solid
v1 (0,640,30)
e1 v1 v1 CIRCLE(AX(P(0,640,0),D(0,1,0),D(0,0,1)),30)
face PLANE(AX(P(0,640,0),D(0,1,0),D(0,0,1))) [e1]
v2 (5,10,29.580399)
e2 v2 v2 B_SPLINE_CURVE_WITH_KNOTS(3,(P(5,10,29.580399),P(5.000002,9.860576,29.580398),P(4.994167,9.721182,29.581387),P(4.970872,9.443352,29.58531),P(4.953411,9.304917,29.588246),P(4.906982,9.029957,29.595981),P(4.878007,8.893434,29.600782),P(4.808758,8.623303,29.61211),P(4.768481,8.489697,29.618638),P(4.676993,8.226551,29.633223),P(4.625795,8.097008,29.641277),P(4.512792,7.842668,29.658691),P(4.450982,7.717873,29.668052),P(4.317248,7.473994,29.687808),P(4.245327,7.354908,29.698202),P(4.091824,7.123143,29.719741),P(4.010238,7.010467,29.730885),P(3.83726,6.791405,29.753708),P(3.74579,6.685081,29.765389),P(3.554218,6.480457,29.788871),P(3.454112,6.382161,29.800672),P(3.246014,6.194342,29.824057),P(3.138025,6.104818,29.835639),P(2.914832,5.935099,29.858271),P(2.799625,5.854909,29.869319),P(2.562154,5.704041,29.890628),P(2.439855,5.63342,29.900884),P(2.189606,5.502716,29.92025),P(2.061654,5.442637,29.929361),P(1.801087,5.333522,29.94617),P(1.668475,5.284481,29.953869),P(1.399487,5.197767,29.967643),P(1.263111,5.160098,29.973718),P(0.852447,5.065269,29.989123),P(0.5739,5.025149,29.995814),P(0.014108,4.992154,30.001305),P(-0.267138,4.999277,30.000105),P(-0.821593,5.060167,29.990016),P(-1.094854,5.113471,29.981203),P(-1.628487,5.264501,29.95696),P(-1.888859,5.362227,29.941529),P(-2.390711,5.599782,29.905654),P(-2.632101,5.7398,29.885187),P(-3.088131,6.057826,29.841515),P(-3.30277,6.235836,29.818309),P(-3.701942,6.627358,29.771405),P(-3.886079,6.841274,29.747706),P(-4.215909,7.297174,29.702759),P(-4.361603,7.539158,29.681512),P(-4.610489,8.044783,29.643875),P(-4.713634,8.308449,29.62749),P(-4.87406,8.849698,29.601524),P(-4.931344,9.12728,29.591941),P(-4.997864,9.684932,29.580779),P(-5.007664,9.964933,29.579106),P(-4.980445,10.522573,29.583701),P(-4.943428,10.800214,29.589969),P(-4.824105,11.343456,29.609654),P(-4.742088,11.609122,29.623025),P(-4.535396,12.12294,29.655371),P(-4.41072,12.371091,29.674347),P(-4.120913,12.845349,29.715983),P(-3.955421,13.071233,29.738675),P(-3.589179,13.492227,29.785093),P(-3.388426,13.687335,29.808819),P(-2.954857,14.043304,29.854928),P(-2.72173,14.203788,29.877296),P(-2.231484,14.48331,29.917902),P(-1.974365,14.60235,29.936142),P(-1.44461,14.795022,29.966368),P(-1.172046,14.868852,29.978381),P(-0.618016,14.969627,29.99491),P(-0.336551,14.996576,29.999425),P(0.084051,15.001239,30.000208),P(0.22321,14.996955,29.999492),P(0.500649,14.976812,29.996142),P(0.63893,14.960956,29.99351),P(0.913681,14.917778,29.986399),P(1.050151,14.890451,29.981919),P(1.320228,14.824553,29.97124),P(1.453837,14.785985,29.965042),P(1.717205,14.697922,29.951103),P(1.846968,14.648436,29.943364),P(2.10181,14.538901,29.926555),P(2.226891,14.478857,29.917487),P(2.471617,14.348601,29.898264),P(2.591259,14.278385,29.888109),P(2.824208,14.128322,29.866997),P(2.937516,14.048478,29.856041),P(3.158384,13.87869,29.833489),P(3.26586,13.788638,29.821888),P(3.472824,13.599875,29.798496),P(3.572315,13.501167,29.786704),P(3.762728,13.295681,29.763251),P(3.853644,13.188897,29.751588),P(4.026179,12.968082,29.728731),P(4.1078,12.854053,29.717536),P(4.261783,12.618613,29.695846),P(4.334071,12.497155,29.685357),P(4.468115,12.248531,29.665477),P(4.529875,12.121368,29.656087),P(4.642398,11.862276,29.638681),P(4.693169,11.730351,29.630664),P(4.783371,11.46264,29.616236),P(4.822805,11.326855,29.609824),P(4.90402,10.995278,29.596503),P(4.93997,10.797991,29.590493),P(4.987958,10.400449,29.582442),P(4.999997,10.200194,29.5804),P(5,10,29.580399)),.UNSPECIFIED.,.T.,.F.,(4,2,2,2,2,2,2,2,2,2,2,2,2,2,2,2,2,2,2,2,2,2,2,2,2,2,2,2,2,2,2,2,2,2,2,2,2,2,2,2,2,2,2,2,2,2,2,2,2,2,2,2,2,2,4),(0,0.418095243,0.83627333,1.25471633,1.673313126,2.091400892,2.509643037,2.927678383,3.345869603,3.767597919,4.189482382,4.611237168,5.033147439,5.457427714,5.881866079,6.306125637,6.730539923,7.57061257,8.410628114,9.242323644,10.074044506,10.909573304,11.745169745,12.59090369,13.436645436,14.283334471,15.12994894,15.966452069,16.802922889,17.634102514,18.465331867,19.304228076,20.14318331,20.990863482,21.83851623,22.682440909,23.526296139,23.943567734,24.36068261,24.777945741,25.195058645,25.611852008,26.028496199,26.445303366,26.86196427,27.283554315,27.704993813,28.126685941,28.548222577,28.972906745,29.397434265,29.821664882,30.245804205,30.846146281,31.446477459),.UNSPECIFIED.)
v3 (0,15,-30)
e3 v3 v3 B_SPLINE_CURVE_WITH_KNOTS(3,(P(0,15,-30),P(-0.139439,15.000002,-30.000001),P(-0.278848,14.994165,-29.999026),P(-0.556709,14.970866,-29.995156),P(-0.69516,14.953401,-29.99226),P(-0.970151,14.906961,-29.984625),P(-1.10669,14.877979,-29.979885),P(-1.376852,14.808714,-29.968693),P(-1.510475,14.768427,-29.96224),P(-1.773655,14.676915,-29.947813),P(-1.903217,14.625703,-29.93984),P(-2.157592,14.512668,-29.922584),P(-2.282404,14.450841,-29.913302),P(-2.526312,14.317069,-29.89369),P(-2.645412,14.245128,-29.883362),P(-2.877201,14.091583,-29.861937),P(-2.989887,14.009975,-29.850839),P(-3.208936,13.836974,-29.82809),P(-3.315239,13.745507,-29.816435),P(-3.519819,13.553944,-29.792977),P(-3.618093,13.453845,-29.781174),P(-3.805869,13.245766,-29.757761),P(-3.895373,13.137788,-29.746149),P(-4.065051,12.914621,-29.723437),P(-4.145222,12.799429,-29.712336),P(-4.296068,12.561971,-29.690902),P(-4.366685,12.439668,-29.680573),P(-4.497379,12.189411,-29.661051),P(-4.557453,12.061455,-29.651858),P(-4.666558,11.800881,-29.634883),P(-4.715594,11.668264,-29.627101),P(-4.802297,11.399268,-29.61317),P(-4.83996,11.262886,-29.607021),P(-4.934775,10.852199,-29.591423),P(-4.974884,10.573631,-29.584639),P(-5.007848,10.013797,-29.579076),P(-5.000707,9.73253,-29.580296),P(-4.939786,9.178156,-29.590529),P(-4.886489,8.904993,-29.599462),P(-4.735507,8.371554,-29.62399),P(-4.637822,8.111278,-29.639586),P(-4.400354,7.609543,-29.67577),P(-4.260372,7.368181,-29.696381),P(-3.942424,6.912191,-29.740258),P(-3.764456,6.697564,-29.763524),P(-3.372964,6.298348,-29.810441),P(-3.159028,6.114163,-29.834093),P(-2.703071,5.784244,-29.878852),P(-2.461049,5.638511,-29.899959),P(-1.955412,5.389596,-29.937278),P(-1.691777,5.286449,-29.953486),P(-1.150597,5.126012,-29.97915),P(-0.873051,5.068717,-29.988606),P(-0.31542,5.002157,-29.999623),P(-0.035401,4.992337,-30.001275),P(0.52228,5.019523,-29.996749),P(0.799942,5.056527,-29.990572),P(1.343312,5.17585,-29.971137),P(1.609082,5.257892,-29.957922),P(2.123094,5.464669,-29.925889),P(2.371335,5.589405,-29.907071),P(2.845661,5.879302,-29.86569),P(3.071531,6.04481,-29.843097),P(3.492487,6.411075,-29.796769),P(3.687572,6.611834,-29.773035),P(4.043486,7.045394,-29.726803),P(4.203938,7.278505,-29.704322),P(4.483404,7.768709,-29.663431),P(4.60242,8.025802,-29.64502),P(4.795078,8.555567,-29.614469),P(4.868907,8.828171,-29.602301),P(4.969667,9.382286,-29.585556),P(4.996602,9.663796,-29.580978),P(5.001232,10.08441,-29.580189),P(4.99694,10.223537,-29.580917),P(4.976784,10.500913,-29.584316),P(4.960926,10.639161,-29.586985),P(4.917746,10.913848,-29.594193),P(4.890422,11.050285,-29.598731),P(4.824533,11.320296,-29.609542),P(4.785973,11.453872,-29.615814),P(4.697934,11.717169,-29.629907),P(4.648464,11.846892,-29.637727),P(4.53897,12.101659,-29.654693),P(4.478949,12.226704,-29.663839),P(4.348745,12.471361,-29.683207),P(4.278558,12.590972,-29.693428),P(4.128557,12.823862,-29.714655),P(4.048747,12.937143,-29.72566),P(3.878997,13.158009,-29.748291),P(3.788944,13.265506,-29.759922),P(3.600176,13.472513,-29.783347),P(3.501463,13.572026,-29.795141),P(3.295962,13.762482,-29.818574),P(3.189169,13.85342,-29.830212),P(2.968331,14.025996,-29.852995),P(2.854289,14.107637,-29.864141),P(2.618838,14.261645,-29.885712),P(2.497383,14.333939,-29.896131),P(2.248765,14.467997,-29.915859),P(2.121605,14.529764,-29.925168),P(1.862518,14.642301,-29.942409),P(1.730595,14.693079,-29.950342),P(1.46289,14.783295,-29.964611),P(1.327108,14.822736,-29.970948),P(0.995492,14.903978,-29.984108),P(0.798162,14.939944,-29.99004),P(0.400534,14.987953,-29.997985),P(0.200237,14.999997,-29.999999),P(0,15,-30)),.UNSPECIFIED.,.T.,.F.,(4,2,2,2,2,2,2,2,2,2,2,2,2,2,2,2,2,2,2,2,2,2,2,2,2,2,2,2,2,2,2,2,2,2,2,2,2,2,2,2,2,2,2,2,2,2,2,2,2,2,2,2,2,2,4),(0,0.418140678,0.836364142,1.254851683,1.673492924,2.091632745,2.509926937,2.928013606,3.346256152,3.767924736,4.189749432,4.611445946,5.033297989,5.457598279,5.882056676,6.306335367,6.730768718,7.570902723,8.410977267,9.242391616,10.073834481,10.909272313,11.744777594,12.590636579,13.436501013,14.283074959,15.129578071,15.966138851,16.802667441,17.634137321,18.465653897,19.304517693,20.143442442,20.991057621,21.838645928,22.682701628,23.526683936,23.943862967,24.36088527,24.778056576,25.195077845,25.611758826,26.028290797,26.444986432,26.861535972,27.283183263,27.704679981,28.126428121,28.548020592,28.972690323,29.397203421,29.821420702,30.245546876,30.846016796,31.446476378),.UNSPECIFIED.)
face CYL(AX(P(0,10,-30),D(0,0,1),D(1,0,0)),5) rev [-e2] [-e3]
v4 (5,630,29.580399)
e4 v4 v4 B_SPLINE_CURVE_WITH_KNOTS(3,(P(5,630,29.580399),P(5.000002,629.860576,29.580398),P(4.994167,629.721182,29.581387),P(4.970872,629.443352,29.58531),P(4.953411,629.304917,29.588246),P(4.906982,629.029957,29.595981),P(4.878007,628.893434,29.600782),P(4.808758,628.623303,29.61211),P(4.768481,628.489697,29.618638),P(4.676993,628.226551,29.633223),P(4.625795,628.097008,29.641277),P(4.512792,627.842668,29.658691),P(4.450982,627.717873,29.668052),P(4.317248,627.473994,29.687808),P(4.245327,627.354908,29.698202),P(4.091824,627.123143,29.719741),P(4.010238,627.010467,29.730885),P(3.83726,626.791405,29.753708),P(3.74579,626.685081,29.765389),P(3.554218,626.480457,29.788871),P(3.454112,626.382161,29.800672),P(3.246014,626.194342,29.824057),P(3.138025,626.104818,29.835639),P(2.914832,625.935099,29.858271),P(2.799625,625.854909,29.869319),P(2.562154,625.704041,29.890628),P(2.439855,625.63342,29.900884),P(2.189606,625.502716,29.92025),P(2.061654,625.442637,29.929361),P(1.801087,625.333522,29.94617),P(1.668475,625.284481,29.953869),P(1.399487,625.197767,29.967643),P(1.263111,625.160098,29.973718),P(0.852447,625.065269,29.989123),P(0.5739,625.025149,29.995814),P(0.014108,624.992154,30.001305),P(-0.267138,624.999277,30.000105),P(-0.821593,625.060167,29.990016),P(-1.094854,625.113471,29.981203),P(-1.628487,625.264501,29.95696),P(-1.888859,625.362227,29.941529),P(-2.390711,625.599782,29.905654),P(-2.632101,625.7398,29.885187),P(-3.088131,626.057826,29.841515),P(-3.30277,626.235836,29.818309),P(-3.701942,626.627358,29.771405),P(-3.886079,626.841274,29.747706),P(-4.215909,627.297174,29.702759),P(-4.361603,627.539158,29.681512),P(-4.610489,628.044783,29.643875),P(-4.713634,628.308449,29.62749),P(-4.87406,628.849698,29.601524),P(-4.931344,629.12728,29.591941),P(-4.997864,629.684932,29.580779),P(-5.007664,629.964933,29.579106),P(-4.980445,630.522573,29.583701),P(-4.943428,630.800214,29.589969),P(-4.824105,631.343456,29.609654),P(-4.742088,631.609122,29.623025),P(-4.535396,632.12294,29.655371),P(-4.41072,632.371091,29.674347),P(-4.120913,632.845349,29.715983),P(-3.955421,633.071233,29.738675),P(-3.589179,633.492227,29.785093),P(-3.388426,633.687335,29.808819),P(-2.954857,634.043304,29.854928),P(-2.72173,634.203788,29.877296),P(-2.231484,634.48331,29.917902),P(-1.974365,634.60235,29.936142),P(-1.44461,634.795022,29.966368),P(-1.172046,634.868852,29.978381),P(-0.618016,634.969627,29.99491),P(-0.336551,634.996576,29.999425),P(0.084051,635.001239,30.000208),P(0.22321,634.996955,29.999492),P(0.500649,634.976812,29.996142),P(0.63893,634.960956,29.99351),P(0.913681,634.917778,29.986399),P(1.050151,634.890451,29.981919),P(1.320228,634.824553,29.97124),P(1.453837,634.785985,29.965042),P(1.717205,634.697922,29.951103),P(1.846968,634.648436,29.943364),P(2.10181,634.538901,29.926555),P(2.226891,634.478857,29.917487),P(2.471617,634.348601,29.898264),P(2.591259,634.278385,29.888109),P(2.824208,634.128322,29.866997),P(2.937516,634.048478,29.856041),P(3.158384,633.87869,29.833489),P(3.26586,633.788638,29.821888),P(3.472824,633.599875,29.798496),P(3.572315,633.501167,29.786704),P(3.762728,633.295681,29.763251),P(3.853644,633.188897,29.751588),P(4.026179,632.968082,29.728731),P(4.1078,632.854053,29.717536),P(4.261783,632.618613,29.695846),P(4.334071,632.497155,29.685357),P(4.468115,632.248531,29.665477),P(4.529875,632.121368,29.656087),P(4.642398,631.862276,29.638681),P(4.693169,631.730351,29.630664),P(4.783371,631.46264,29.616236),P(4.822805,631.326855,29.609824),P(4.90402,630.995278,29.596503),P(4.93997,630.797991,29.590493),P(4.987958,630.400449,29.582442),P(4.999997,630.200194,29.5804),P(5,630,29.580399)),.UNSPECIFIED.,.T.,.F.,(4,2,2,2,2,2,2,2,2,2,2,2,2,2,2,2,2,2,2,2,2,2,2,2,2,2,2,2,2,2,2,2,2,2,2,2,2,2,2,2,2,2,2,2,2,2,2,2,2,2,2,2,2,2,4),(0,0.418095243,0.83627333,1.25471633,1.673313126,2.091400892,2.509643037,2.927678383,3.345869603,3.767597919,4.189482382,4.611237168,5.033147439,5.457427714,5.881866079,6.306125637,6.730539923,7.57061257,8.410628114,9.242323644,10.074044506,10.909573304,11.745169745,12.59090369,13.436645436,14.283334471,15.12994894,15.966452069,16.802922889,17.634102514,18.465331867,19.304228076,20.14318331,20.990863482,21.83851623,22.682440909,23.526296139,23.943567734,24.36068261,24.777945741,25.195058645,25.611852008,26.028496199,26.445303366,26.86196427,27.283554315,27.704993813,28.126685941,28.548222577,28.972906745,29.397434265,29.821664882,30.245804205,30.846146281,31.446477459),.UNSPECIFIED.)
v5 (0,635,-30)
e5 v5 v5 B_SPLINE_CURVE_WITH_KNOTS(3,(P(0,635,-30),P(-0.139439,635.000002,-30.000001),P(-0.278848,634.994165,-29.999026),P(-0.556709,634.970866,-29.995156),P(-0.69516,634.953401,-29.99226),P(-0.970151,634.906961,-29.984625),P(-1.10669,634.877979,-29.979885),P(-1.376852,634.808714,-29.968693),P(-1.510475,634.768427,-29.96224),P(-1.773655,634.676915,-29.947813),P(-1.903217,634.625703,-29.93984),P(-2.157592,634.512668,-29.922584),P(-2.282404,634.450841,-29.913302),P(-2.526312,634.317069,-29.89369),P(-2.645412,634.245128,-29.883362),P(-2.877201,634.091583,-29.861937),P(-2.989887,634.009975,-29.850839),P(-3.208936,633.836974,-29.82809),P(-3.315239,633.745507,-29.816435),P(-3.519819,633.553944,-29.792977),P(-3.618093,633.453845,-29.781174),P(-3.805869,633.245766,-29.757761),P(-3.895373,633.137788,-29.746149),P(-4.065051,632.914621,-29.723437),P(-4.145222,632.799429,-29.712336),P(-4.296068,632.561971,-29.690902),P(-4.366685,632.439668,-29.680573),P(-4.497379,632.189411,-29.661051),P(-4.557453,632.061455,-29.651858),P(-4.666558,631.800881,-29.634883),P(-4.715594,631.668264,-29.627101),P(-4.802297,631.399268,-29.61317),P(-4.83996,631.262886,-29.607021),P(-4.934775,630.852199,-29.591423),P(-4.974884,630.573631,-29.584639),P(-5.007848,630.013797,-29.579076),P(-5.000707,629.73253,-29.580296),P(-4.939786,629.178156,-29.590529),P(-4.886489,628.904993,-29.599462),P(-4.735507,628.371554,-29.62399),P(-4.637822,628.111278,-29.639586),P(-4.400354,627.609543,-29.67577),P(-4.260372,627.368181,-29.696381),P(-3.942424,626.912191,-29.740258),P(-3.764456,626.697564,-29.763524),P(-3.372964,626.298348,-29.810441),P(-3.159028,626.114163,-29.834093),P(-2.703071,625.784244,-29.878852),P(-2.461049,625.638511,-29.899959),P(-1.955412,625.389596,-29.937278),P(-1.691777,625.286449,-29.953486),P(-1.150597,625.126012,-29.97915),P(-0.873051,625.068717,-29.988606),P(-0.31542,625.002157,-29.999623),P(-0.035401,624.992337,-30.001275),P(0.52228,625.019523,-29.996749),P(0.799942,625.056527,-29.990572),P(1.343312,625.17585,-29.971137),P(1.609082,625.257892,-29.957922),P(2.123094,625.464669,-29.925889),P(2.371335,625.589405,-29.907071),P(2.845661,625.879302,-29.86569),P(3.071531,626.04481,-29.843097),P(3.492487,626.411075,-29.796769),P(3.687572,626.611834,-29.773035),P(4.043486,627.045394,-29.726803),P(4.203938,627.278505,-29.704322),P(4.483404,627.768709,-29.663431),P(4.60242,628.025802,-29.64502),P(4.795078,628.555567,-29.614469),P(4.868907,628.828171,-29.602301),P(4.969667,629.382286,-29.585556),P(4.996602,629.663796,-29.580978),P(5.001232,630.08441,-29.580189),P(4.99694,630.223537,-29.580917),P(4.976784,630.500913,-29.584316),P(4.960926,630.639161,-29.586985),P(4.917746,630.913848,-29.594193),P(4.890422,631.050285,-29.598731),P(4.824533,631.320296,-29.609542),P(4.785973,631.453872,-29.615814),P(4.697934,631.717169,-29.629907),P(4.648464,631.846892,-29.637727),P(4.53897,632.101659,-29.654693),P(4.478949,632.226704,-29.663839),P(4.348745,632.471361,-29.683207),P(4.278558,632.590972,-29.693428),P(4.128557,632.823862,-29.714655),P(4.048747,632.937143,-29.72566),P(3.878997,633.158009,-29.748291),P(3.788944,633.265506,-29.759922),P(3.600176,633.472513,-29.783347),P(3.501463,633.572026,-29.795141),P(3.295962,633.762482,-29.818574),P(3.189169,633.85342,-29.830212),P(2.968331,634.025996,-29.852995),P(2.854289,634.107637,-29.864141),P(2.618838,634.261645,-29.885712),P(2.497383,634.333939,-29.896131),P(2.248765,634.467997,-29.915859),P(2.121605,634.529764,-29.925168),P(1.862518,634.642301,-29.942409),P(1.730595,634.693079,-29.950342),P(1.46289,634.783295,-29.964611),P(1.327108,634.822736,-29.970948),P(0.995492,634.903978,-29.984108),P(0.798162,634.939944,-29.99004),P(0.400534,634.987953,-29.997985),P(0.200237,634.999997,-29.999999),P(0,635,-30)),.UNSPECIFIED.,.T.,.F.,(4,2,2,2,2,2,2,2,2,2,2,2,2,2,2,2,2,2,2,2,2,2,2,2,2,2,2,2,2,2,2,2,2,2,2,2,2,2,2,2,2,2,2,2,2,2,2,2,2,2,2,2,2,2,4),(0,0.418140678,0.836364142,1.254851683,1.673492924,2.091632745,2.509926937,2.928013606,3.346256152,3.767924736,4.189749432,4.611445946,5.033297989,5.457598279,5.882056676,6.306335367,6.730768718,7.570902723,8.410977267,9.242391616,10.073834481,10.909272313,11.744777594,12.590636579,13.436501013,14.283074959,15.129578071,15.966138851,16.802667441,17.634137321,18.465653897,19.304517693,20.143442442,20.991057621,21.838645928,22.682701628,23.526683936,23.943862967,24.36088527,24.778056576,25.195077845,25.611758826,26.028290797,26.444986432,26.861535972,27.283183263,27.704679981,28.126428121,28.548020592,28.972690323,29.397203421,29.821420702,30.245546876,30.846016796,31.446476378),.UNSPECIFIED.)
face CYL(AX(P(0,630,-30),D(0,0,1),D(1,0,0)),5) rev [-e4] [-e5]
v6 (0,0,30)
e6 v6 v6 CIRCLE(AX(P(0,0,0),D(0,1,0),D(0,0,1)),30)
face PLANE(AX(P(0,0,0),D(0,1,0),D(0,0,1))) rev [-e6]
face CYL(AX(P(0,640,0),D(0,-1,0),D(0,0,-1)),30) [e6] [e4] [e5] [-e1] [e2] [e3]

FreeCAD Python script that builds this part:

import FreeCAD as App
import Part
import Sketcher
from FreeCAD import Vector

doc = App.newDocument("Part")
body = doc.addObject("PartDesign::Body", "Body")

sketch1 = body.newObject("Sketcher::SketchObject", "Sketch")
sketch1.AttachmentSupport = (doc.getObject("XZ_Plane"), [""])
sketch1.MapMode = "FlatFace"
sketch1.addGeometry(Part.Circle(Vector(0, 0, 0), Vector(0, 0, 1), 30), False)
sketch1.addConstraint([
    Sketcher.Constraint("Coincident", 0, 3, -1, 1),
    Sketcher.Constraint("Diameter", 0, 60.0),
])
pad1 = body.newObject("PartDesign::Pad", "Pad")
pad1.Profile = sketch1
pad1.Length = 640
pad1.Reversed = True

sketch2 = body.newObject("Sketcher::SketchObject", "Sketch001")
sketch2.AttachmentSupport = (doc.getObject("XY_Plane"), [""])
sketch2.MapMode = "FlatFace"
sketch2.addGeometry([
    Part.Circle(Vector(0, 630, 0), Vector(0, 0, 1), 5),
    Part.Circle(Vector(0, 10, 0), Vector(0, 0, 1), 5),
], False)
sketch2.addConstraint([
    Sketcher.Constraint("Equal", 0, 1),
    Sketcher.Constraint("PointOnObject", 0, 3, -2),
    Sketcher.Constraint("PointOnObject", 1, 3, -2),
    Sketcher.Constraint("Diameter", 0, 10.0),
    Sketcher.Constraint("DistanceY", -1, 1, 0, 3, 630.0),
    Sketcher.Constraint("DistanceY", -1, 1, 1, 3, 10.0),
])
pocket1 = body.newObject("PartDesign::Pocket", "Pocket")
pocket1.Profile = sketch2
pocket1.Type = "ThroughAll"
pocket1.Midplane = True

doc.recompute()
